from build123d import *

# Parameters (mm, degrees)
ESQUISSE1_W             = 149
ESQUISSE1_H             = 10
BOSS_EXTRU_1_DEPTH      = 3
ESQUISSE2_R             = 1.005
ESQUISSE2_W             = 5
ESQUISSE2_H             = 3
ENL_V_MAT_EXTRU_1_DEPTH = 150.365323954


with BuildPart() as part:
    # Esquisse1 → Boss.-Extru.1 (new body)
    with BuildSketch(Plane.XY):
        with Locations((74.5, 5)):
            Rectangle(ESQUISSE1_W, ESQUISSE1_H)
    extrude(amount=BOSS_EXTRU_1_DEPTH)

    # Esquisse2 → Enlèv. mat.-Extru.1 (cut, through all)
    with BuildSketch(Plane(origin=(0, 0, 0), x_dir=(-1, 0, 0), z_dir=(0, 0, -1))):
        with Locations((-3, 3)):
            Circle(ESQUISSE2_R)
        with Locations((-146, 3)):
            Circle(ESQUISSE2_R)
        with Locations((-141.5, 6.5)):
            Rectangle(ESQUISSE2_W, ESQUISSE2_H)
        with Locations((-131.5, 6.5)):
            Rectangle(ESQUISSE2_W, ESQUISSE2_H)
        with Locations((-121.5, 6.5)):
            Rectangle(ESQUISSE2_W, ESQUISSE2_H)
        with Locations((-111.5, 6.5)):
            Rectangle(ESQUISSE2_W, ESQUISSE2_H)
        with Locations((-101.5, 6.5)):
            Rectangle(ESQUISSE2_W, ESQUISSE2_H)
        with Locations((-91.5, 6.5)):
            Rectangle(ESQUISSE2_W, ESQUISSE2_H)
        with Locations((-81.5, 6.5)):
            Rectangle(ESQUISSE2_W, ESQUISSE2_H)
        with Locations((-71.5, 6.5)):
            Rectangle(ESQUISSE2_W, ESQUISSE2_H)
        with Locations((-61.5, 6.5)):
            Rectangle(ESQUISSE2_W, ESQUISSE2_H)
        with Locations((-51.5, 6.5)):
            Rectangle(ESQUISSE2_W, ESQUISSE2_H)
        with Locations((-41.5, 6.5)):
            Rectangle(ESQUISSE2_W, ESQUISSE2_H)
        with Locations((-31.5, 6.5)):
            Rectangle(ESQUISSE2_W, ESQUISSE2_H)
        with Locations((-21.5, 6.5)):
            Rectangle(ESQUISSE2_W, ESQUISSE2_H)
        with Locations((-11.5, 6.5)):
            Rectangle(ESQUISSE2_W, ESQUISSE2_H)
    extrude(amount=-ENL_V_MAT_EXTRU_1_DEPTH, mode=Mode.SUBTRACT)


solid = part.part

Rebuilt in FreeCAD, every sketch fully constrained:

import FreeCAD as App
import Part
import Sketcher

V = App.Vector

doc = App.newDocument("Part")
body = doc.addObject("PartDesign::Body", "Body")

# Sketch on XY plane
sketch1 = doc.addObject("Sketcher::SketchObject", "Sketch")
body.addObject(sketch1)
sketch1.AttachmentSupport = (doc.XY_Plane, [""])
sketch1.MapMode = "FlatFace"
sketch1.addGeometry([
    Part.LineSegment(V(0, 10, 0), V(0, 0, 0)),
    Part.LineSegment(V(0, 0, 0), V(149, 0, 0)),
    Part.LineSegment(V(149, 0, 0), V(149, 10, 0)),
    Part.LineSegment(V(149, 10, 0), V(0, 10, 0)),
], False)
sketch1.addConstraint([
    Sketcher.Constraint("Coincident", 0, 2, 1, 1),
    Sketcher.Constraint("Coincident", 1, 2, 2, 1),
    Sketcher.Constraint("Coincident", 2, 2, 3, 1),
    Sketcher.Constraint("Coincident", 3, 2, 0, 1),
    Sketcher.Constraint("Vertical", 0),
    Sketcher.Constraint("Horizontal", 1),
    Sketcher.Constraint("Vertical", 2),
    Sketcher.Constraint("Horizontal", 3),
    Sketcher.Constraint("Coincident", 0, 2, -1, 1),
    Sketcher.Constraint("DistanceX", 1, 1, 1, 2, 149.0),
    Sketcher.Constraint("DistanceY", 0, 2, 0, 1, 10.0),
])
pad1 = doc.addObject("PartDesign::Pad", "Pad")
body.addObject(pad1)
pad1.Profile = sketch1
pad1.Length = 3

# Sketch on XY plane
sketch2 = doc.addObject("Sketcher::SketchObject", "Sketch001")
body.addObject(sketch2)
sketch2.AttachmentSupport = (doc.XY_Plane, [""])
sketch2.MapMode = "FlatFace"
sketch2.addGeometry([
    Part.Circle(V(3, 3, 0), V(0, 0, 1), 1),  # 0
    Part.Circle(V(146, 3, 0), V(0, 0, 1), 1),  # 1
    Part.LineSegment(V(144, 8, 0), V(144, 5, 0)),  # 2
    Part.LineSegment(V(144, 5, 0), V(139, 5, 0)),  # 3
    Part.LineSegment(V(139, 5, 0), V(139, 8, 0)),  # 4
    Part.LineSegment(V(139, 8, 0), V(144, 8, 0)),  # 5
    Part.LineSegment(V(134, 8, 0), V(134, 5, 0)),  # 6
    Part.LineSegment(V(134, 5, 0), V(129, 5, 0)),  # 7
    Part.LineSegment(V(129, 5, 0), V(129, 8, 0)),  # 8
    Part.LineSegment(V(129, 8, 0), V(134, 8, 0)),  # 9
    Part.LineSegment(V(124, 8, 0), V(124, 5, 0)),  # 10
    Part.LineSegment(V(124, 5, 0), V(119, 5, 0)),  # 11
    Part.LineSegment(V(119, 5, 0), V(119, 8, 0)),  # 12
    Part.LineSegment(V(119, 8, 0), V(124, 8, 0)),  # 13
    Part.LineSegment(V(114, 8, 0), V(114, 5, 0)),  # 14
    Part.LineSegment(V(114, 5, 0), V(109, 5, 0)),  # 15
    Part.LineSegment(V(109, 5, 0), V(109, 8, 0)),  # 16
    Part.LineSegment(V(109, 8, 0), V(114, 8, 0)),  # 17
    Part.LineSegment(V(104, 8, 0), V(104, 5, 0)),  # 18
    Part.LineSegment(V(104, 5, 0), V(99, 5, 0)),  # 19
    Part.LineSegment(V(99, 5, 0), V(99, 8, 0)),  # 20
    Part.LineSegment(V(99, 8, 0), V(104, 8, 0)),  # 21
    Part.LineSegment(V(94, 8, 0), V(94, 5, 0)),  # 22
    Part.LineSegment(V(94, 5, 0), V(89, 5, 0)),  # 23
    Part.LineSegment(V(89, 5, 0), V(89, 8, 0)),  # 24
    Part.LineSegment(V(89, 8, 0), V(94, 8, 0)),  # 25
    Part.LineSegment(V(84, 8, 0), V(84, 5, 0)),  # 26
    Part.LineSegment(V(84, 5, 0), V(79, 5, 0)),  # 27
    Part.LineSegment(V(79, 5, 0), V(79, 8, 0)),  # 28
    Part.LineSegment(V(79, 8, 0), V(84, 8, 0)),  # 29
    Part.LineSegment(V(74, 8, 0), V(74, 5, 0)),  # 30
    Part.LineSegment(V(74, 5, 0), V(69, 5, 0)),  # 31
    Part.LineSegment(V(69, 5, 0), V(69, 8, 0)),  # 32
    Part.LineSegment(V(69, 8, 0), V(74, 8, 0)),  # 33
    Part.LineSegment(V(64, 8, 0), V(64, 5, 0)),  # 34
    Part.LineSegment(V(64, 5, 0), V(59, 5, 0)),  # 35
    Part.LineSegment(V(59, 5, 0), V(59, 8, 0)),  # 36
    Part.LineSegment(V(59, 8, 0), V(64, 8, 0)),  # 37
    Part.LineSegment(V(54, 8, 0), V(54, 5, 0)),  # 38
    Part.LineSegment(V(54, 5, 0), V(49, 5, 0)),  # 39
    Part.LineSegment(V(49, 5, 0), V(49, 8, 0)),  # 40
    Part.LineSegment(V(49, 8, 0), V(54, 8, 0)),  # 41
    Part.LineSegment(V(44, 8, 0), V(44, 5, 0)),  # 42
    Part.LineSegment(V(44, 5, 0), V(39, 5, 0)),  # 43
    Part.LineSegment(V(39, 5, 0), V(39, 8, 0)),  # 44
    Part.LineSegment(V(39, 8, 0), V(44, 8, 0)),  # 45
    Part.LineSegment(V(34, 8, 0), V(34, 5, 0)),  # 46
    Part.LineSegment(V(34, 5, 0), V(29, 5, 0)),  # 47
    Part.LineSegment(V(29, 5, 0), V(29, 8, 0)),  # 48
    Part.LineSegment(V(29, 8, 0), V(34, 8, 0)),  # 49
    Part.LineSegment(V(24, 8, 0), V(24, 5, 0)),  # 50
    Part.LineSegment(V(24, 5, 0), V(19, 5, 0)),  # 51
    Part.LineSegment(V(19, 5, 0), V(19, 8, 0)),  # 52
    Part.LineSegment(V(19, 8, 0), V(24, 8, 0)),  # 53
    Part.LineSegment(V(14, 8, 0), V(14, 5, 0)),  # 54
    Part.LineSegment(V(14, 5, 0), V(9, 5, 0)),  # 55
    Part.LineSegment(V(9, 5, 0), V(9, 8, 0)),  # 56
    Part.LineSegment(V(9, 8, 0), V(14, 8, 0)),  # 57
], False)
sketch2.addConstraint([
    Sketcher.Constraint("Coincident", 2, 2, 3, 1),
    Sketcher.Constraint("Coincident", 3, 2, 4, 1),
    Sketcher.Constraint("Coincident", 4, 2, 5, 1),
    Sketcher.Constraint("Coincident", 5, 2, 2, 1),
    Sketcher.Constraint("Coincident", 6, 2, 7, 1),
    Sketcher.Constraint("Coincident", 7, 2, 8, 1),
    Sketcher.Constraint("Coincident", 8, 2, 9, 1),
    Sketcher.Constraint("Coincident", 9, 2, 6, 1),
    Sketcher.Constraint("Coincident", 10, 2, 11, 1),
    Sketcher.Constraint("Coincident", 11, 2, 12, 1),
    Sketcher.Constraint("Coincident", 12, 2, 13, 1),
    Sketcher.Constraint("Coincident", 13, 2, 10, 1),
    Sketcher.Constraint("Coincident", 14, 2, 15, 1),
    Sketcher.Constraint("Coincident", 15, 2, 16, 1),
    Sketcher.Constraint("Coincident", 16, 2, 17, 1),
    Sketcher.Constraint("Coincident", 17, 2, 14, 1),
    Sketcher.Constraint("Coincident", 18, 2, 19, 1),
    Sketcher.Constraint("Coincident", 19, 2, 20, 1),
    Sketcher.Constraint("Coincident", 20, 2, 21, 1),
    Sketcher.Constraint("Coincident", 21, 2, 18, 1),
    Sketcher.Constraint("Coincident", 22, 2, 23, 1),
    Sketcher.Constraint("Coincident", 23, 2, 24, 1),
    Sketcher.Constraint("Coincident", 24, 2, 25, 1),
    Sketcher.Constraint("Coincident", 25, 2, 22, 1),
    Sketcher.Constraint("Coincident", 26, 2, 27, 1),
    Sketcher.Constraint("Coincident", 27, 2, 28, 1),
    Sketcher.Constraint("Coincident", 28, 2, 29, 1),
    Sketcher.Constraint("Coincident", 29, 2, 26, 1),
    Sketcher.Constraint("Coincident", 30, 2, 31, 1),
    Sketcher.Constraint("Coincident", 31, 2, 32, 1),
    Sketcher.Constraint("Coincident", 32, 2, 33, 1),
    Sketcher.Constraint("Coincident", 33, 2, 30, 1),
    Sketcher.Constraint("Coincident", 34, 2, 35, 1),
    Sketcher.Constraint("Coincident", 35, 2, 36, 1),
    Sketcher.Constraint("Coincident", 36, 2, 37, 1),
    Sketcher.Constraint("Coincident", 37, 2, 34, 1),
    Sketcher.Constraint("Coincident", 38, 2, 39, 1),
    Sketcher.Constraint("Coincident", 39, 2, 40, 1),
    Sketcher.Constraint("Coincident", 40, 2, 41, 1),
    Sketcher.Constraint("Coincident", 41, 2, 38, 1),
    Sketcher.Constraint("Coincident", 42, 2, 43, 1),
    Sketcher.Constraint("Coincident", 43, 2, 44, 1),
    Sketcher.Constraint("Coincident", 44, 2, 45, 1),
    Sketcher.Constraint("Coincident", 45, 2, 42, 1),
    Sketcher.Constraint("Coincident", 46, 2, 47, 1),
    Sketcher.Constraint("Coincident", 47, 2, 48, 1),
    Sketcher.Constraint("Coincident", 48, 2, 49, 1),
    Sketcher.Constraint("Coincident", 49, 2, 46, 1),
    Sketcher.Constraint("Coincident", 50, 2, 51, 1),
    Sketcher.Constraint("Coincident", 51, 2, 52, 1),
    Sketcher.Constraint("Coincident", 52, 2, 53, 1),
    Sketcher.Constraint("Coincident", 53, 2, 50, 1),
    Sketcher.Constraint("Coincident", 54, 2, 55, 1),
    Sketcher.Constraint("Coincident", 55, 2, 56, 1),
    Sketcher.Constraint("Coincident", 56, 2, 57, 1),
    Sketcher.Constraint("Coincident", 57, 2, 54, 1),
    Sketcher.Constraint("Vertical", 2),
    Sketcher.Constraint("Horizontal", 3),
    Sketcher.Constraint("Vertical", 4),
    Sketcher.Constraint("Horizontal", 5),
    Sketcher.Constraint("Vertical", 6),
    Sketcher.Constraint("Horizontal", 7),
    Sketcher.Constraint("Vertical", 8),
    Sketcher.Constraint("Horizontal", 9),
    Sketcher.Constraint("Vertical", 10),
    Sketcher.Constraint("Horizontal", 11),
    Sketcher.Constraint("Vertical", 12),
    Sketcher.Constraint("Horizontal", 13),
    Sketcher.Constraint("Vertical", 14),
    Sketcher.Constraint("Horizontal", 15),
    Sketcher.Constraint("Vertical", 16),
    Sketcher.Constraint("Horizontal", 17),
    Sketcher.Constraint("Vertical", 18),
    Sketcher.Constraint("Horizontal", 19),
    Sketcher.Constraint("Vertical", 20),
    Sketcher.Constraint("Horizontal", 21),
    Sketcher.Constraint("Vertical", 22),
    Sketcher.Constraint("Horizontal", 23),
    Sketcher.Constraint("Vertical", 24),
    Sketcher.Constraint("Horizontal", 25),
    Sketcher.Constraint("Vertical", 26),
    Sketcher.Constraint("Horizontal", 27),
    Sketcher.Constraint("Vertical", 28),
    Sketcher.Constraint("Horizontal", 29),
    Sketcher.Constraint("Vertical", 30),
    Sketcher.Constraint("Horizontal", 31),
    Sketcher.Constraint("Vertical", 32),
    Sketcher.Constraint("Horizontal", 33),
    Sketcher.Constraint("Vertical", 34),
    Sketcher.Constraint("Horizontal", 35),
    Sketcher.Constraint("Vertical", 36),
    Sketcher.Constraint("Horizontal", 37),
    Sketcher.Constraint("Vertical", 38),
    Sketcher.Constraint("Horizontal", 39),
    Sketcher.Constraint("Vertical", 40),
    Sketcher.Constraint("Horizontal", 41),
    Sketcher.Constraint("Vertical", 42),
    Sketcher.Constraint("Horizontal", 43),
    Sketcher.Constraint("Vertical", 44),
    Sketcher.Constraint("Horizontal", 45),
    Sketcher.Constraint("Vertical", 46),
    Sketcher.Constraint("Horizontal", 47),
    Sketcher.Constraint("Vertical", 48),
    Sketcher.Constraint("Horizontal", 49),
    Sketcher.Constraint("Vertical", 50),
    Sketcher.Constraint("Horizontal", 51),
    Sketcher.Constraint("Vertical", 52),
    Sketcher.Constraint("Horizontal", 53),
    Sketcher.Constraint("Vertical", 54),
    Sketcher.Constraint("Horizontal", 55),
    Sketcher.Constraint("Vertical", 56),
    Sketcher.Constraint("Horizontal", 57),
    Sketcher.Constraint("Equal", 0, 1),
    Sketcher.Constraint("Horizontal", 0, 3, 1, 3),
    Sketcher.Constraint("Horizontal", 3, 2, 6, 2),
    Sketcher.Constraint("Horizontal", 5, 2, 8, 2),
    Sketcher.Constraint("Horizontal", 7, 2, 10, 2),
    Sketcher.Constraint("Horizontal", 9, 2, 12, 2),
    Sketcher.Constraint("Horizontal", 11, 2, 14, 2),
    Sketcher.Constraint("Horizontal", 13, 2, 16, 2),
    Sketcher.Constraint("Horizontal", 15, 2, 18, 2),
    Sketcher.Constraint("Horizontal", 17, 2, 20, 2),
    Sketcher.Constraint("Horizontal", 19, 2, 22, 2),
    Sketcher.Constraint("Horizontal", 21, 2, 24, 2),
    Sketcher.Constraint("Horizontal", 23, 2, 26, 2),
    Sketcher.Constraint("Horizontal", 25, 2, 28, 2),
    Sketcher.Constraint("Horizontal", 27, 2, 30, 2),
    Sketcher.Constraint("Horizontal", 29, 2, 32, 2),
    Sketcher.Constraint("Horizontal", 31, 2, 34, 2),
    Sketcher.Constraint("Horizontal", 33, 2, 36, 2),
    Sketcher.Constraint("Horizontal", 35, 2, 38, 2),
    Sketcher.Constraint("Horizontal", 37, 2, 40, 2),
    Sketcher.Constraint("Horizontal", 39, 2, 42, 2),
    Sketcher.Constraint("Horizontal", 41, 2, 44, 2),
    Sketcher.Constraint("Horizontal", 43, 2, 46, 2),
    Sketcher.Constraint("Horizontal", 45, 2, 48, 2),
    Sketcher.Constraint("Horizontal", 47, 2, 50, 2),
    Sketcher.Constraint("Horizontal", 49, 2, 52, 2),
    Sketcher.Constraint("Horizontal", 51, 2, 54, 2),
    Sketcher.Constraint("Horizontal", 53, 2, 56, 2),
    Sketcher.Constraint("Equal", 5, 7),
    Sketcher.Constraint("Equal", 9, 11),
    Sketcher.Constraint("Equal", 13, 15),
    Sketcher.Constraint("Equal", 17, 19),
    Sketcher.Constraint("Equal", 21, 23),
    Sketcher.Constraint("Equal", 25, 27),
    Sketcher.Constraint("Equal", 29, 31),
    Sketcher.Constraint("Equal", 33, 35),
    Sketcher.Constraint("Equal", 37, 39),
    Sketcher.Constraint("Equal", 41, 43),
    Sketcher.Constraint("Equal", 45, 47),
    Sketcher.Constraint("Equal", 49, 51),
    Sketcher.Constraint("Equal", 53, 55),
    Sketcher.Constraint("Diameter", 0, 2.01),
    Sketcher.Constraint("DistanceX", 3, 2, 3, 1, 5.0),
    Sketcher.Constraint("DistanceY", 2, 2, 2, 1, 3.0),
    Sketcher.Constraint("DistanceX", -1, 1, 0, 3, 3.0),
    Sketcher.Constraint("DistanceY", -1, 1, 0, 3, 3.0),
    Sketcher.Constraint("DistanceX", -1, 1, 1, 3, 146.0),
    Sketcher.Constraint("DistanceX", -1, 1, 2, 2, 144.0),
    Sketcher.Constraint("DistanceY", -1, 1, 2, 2, 5.0),
    Sketcher.Constraint("DistanceX", -1, 1, 6, 2, 134.0),
    Sketcher.Constraint("DistanceX", -1, 1, 10, 2, 124.0),
    Sketcher.Constraint("DistanceX", -1, 1, 14, 2, 114.0),
    Sketcher.Constraint("DistanceX", -1, 1, 18, 2, 104.0),
    Sketcher.Constraint("DistanceX", -1, 1, 22, 2, 94.0),
    Sketcher.Constraint("DistanceX", -1, 1, 26, 2, 84.0),
    Sketcher.Constraint("DistanceX", -1, 1, 30, 2, 74.0),
    Sketcher.Constraint("DistanceX", -1, 1, 34, 2, 64.0),
    Sketcher.Constraint("DistanceX", -1, 1, 38, 2, 54.0),
    Sketcher.Constraint("DistanceX", -1, 1, 42, 2, 44.0),
    Sketcher.Constraint("DistanceX", -1, 1, 46, 2, 34.0),
    Sketcher.Constraint("DistanceX", -1, 1, 50, 2, 24.0),
    Sketcher.Constraint("DistanceX", -1, 1, 54, 2, 14.0),
])
pocket1 = doc.addObject("PartDesign::Pocket", "Pocket")
body.addObject(pocket1)
pocket1.Profile = sketch2
pocket1.Type = "ThroughAll"
pocket1.Reversed = True

doc.recompute()
